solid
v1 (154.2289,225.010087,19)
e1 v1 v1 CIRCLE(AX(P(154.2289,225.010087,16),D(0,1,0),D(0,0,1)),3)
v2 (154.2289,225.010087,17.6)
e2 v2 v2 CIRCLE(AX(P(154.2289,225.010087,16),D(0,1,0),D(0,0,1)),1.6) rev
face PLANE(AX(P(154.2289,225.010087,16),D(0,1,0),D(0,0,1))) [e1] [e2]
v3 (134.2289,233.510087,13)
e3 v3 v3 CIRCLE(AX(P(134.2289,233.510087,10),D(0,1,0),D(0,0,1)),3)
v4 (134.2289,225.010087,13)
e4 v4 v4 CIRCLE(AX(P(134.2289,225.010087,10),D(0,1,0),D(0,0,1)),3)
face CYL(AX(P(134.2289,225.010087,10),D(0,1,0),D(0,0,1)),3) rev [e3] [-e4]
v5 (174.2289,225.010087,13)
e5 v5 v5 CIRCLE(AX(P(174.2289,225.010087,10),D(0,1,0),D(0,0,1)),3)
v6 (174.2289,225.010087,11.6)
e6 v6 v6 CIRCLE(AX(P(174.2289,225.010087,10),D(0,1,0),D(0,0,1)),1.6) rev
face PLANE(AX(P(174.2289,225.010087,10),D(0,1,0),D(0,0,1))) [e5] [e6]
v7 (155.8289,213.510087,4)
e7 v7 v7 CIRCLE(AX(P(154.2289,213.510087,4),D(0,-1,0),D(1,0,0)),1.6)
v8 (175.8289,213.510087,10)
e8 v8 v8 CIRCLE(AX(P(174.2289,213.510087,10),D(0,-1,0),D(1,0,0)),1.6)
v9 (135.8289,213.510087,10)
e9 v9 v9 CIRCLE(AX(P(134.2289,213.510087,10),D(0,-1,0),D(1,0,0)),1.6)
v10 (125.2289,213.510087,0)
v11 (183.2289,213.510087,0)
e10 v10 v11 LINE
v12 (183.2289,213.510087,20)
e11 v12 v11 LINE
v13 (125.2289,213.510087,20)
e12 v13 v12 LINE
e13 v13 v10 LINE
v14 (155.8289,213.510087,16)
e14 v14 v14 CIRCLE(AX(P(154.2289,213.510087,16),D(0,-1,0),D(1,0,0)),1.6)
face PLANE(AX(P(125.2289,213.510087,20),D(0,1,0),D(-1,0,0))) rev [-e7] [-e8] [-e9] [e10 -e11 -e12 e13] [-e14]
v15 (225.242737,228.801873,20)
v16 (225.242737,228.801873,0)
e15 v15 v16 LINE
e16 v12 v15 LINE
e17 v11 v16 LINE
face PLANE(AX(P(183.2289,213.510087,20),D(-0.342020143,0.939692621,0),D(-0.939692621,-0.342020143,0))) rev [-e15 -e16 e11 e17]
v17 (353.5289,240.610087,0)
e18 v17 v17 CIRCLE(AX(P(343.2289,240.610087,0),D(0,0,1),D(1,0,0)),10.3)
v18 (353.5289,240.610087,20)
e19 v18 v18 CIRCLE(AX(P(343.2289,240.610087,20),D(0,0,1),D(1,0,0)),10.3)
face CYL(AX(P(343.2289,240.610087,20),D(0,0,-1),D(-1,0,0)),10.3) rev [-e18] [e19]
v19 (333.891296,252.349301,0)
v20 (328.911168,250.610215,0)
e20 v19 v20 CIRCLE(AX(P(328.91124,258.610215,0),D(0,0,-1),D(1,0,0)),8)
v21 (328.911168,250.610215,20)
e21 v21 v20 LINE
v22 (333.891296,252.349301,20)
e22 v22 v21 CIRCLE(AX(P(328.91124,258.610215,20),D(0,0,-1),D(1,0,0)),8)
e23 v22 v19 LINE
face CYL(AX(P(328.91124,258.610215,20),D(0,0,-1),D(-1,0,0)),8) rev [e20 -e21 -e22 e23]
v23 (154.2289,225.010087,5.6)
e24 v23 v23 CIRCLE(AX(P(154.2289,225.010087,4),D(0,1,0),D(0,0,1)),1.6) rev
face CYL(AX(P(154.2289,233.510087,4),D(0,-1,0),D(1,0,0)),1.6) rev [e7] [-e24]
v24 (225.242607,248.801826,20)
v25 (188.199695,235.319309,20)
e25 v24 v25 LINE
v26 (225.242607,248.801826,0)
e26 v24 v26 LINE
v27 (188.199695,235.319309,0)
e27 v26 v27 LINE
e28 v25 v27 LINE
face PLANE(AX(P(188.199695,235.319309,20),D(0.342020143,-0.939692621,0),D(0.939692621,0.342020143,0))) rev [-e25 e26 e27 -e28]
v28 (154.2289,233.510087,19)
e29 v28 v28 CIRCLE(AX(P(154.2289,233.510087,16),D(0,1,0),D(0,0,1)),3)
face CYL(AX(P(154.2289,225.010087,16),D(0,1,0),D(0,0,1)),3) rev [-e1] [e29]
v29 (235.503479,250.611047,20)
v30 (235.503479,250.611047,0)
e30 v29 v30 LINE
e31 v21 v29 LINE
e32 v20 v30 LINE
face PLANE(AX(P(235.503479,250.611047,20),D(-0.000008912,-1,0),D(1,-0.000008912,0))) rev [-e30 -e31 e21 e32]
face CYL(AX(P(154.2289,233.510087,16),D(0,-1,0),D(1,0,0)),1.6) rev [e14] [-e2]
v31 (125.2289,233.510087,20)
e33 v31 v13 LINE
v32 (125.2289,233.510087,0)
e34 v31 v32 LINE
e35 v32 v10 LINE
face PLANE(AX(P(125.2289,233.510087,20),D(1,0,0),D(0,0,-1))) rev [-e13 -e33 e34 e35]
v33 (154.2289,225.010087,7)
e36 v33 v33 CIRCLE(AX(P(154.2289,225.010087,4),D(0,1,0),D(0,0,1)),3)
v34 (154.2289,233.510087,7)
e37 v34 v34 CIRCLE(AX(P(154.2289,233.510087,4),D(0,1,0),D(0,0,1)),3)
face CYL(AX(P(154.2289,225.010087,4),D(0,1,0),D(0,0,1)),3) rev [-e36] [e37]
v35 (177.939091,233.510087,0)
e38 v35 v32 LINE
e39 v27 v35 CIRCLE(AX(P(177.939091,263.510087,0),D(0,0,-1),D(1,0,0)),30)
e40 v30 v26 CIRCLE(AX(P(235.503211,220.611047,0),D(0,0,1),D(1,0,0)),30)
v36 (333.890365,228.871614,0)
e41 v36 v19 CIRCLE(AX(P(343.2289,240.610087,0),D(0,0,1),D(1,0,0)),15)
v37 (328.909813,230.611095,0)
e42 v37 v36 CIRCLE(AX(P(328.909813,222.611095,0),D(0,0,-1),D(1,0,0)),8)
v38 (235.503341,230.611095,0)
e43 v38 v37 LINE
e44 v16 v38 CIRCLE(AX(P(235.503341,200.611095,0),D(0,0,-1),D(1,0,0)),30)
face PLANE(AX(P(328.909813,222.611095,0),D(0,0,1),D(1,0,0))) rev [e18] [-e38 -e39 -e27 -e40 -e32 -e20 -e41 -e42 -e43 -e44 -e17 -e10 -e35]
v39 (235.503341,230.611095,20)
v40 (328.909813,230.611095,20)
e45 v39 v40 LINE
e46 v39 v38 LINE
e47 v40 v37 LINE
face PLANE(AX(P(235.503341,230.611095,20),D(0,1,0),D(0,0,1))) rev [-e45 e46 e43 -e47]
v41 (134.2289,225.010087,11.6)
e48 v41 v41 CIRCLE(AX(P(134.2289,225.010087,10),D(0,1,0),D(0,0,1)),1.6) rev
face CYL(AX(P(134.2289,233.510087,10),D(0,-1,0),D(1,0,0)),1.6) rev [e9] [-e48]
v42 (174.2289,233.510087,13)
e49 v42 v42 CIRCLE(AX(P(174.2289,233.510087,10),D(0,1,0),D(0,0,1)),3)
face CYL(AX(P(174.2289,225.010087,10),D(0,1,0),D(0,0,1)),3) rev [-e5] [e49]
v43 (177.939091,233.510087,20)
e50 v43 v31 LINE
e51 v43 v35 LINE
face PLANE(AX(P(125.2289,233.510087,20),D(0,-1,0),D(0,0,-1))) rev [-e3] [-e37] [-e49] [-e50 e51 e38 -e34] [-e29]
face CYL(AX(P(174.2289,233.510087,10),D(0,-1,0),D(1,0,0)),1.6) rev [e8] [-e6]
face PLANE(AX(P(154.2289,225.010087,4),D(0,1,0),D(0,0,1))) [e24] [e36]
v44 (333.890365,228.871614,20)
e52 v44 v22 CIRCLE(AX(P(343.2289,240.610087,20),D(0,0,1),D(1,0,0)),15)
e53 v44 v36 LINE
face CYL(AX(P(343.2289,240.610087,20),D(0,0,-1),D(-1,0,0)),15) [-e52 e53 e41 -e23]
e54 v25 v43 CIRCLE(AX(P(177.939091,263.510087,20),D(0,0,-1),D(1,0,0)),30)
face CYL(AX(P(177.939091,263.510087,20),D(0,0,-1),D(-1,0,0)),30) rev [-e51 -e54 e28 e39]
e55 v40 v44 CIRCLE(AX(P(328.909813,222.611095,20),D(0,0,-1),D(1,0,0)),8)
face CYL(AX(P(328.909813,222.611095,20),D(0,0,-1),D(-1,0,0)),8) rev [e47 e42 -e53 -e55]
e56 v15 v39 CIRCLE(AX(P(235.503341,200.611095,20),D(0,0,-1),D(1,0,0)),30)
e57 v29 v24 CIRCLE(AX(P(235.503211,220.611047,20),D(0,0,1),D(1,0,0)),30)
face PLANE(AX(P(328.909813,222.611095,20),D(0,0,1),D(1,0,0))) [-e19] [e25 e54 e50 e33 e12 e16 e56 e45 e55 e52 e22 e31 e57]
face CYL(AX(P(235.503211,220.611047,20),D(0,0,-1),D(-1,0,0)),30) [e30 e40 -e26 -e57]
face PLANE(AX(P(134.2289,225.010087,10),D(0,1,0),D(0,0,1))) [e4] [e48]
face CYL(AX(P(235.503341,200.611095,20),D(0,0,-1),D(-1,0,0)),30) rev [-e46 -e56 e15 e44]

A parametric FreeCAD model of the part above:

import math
import FreeCAD as App
import Part
import Sketcher
from FreeCAD import Vector
Q = App.Units.Quantity

doc = App.newDocument("Part")
body = doc.addObject("PartDesign::Body", "Body")

# Sketch on XY plane
sketch1 = doc.addObject("Sketcher::SketchObject", "Sketch")
body.addObject(sketch1)
sketch1.AttachmentSupport = (doc.XY_Plane, [""])
sketch1.MapMode = "FlatFace"
sketch1.addGeometry([
    Part.LineSegment(Vector(125.2289, 213.510087, 0), Vector(183.2289, 213.510087, 0)),  # 0
    Part.LineSegment(Vector(183.2289, 213.510087, 0), Vector(225.242737, 228.801873, 0)),  # 1
    Part.ArcOfCircle(Part.Circle(Vector(235.503341, 200.611095, 0), Vector(0, 0, 1), 30), math.radians(90), math.radians(110)),  # 2
    Part.LineSegment(Vector(235.503341, 230.611095, 0), Vector(328.909813, 230.611095, 0)),  # 3
    Part.ArcOfCircle(Part.Circle(Vector(328.909813, 222.611095, 0), Vector(0, 0, 1), 8), math.radians(51.496019), math.radians(90)),  # 4
    Part.ArcOfCircle(Part.Circle(Vector(343.2289, 240.610087, 0), Vector(0, 0, 1), 15), math.radians(-128.503981), math.radians(128.49944)),  # 5
    Part.ArcOfCircle(Part.Circle(Vector(328.91124, 258.610215, 0), Vector(0, 0, 1), 8), math.radians(-90.000511), math.radians(-51.50056)),  # 6
    Part.LineSegment(Vector(328.911168, 250.610215, 0), Vector(235.503479, 250.611047, 0)),  # 7
    Part.ArcOfCircle(Part.Circle(Vector(235.503211, 220.611048, 0), Vector(0, 0, 1), 30), math.radians(89.999489), math.radians(110)),  # 8
    Part.LineSegment(Vector(225.242607, 248.801826, 0), Vector(188.199695, 235.319309, 0)),  # 9
    Part.ArcOfCircle(Part.Circle(Vector(177.939091, 263.510087, 0), Vector(0, 0, 1), 30), math.radians(-90), math.radians(-70)),  # 10
    Part.LineSegment(Vector(177.939091, 233.510087, 0), Vector(125.2289, 233.510087, 0)),  # 11
    Part.LineSegment(Vector(125.2289, 233.510087, 0), Vector(125.2289, 213.510087, 0)),  # 12
    Part.Circle(Vector(343.2289, 240.610087, 0), Vector(0, 0, 1), 10.3),  # 13
], False)
sketch1.addConstraint([
    Sketcher.Constraint("Coincident", 0, 2, 1, 1),
    Sketcher.Constraint("Tangent", 1, 2, 2, 2),
    Sketcher.Constraint("Tangent", 2, 1, 3, 1),
    Sketcher.Constraint("Tangent", 3, 2, 4, 2),
    Sketcher.Constraint("Tangent", 4, 1, 5, 1),
    Sketcher.Constraint("Tangent", 5, 2, 6, 2),
    Sketcher.Constraint("Tangent", 6, 1, 7, 1),
    Sketcher.Constraint("Tangent", 7, 2, 8, 1),
    Sketcher.Constraint("Tangent", 8, 2, 9, 1),
    Sketcher.Constraint("Tangent", 9, 2, 10, 2),
    Sketcher.Constraint("Tangent", 10, 1, 11, 1),
    Sketcher.Constraint("Coincident", 11, 2, 12, 1),
    Sketcher.Constraint("Coincident", 12, 2, 0, 1),
    Sketcher.Constraint("Horizontal", 0),
    Sketcher.Constraint("Horizontal", 3),
    Sketcher.Constraint("Horizontal", 11),
    Sketcher.Constraint("Vertical", 12),
    Sketcher.Constraint("Coincident", 13, 3, 5, 3),
    Sketcher.Constraint("Equal", 4, 6),
    Sketcher.Constraint("Equal", 2, 8),
    Sketcher.Constraint("Equal", 8, 10),
    Sketcher.Constraint("Parallel", 1, 9),
    Sketcher.Constraint("Radius", 2, 30.0),
    Sketcher.Constraint("Radius", 4, 8.0),
    Sketcher.Constraint("Radius", 5, 15.0),
    Sketcher.Constraint("Diameter", 13, 20.6),
    Sketcher.Constraint("DistanceX", 0, 1, 0, 2, 58.0),
    Sketcher.Constraint("DistanceY", 12, 2, 12, 1, 20.0),
    Sketcher.Constraint("Angle", 1, Q("20 deg")),
    Sketcher.Constraint("DistanceY", 5, 3, 10, 3, 22.9),
    Sketcher.Constraint("DistanceX", 11, 2, 11, 1, 52.710191),
    Sketcher.Constraint("DistanceX", -1, 1, 5, 3, 343.2289),
    Sketcher.Constraint("DistanceX", -1, 1, 0, 2, 183.2289),
    Sketcher.Constraint("DistanceY", -1, 1, 5, 2, 252.349301),
    Sketcher.Constraint("DistanceX", 2, 3, 6, 3, 93.407899),
    Sketcher.Constraint("DistanceX", 8, 3, 4, 3, 93.406602),
    Sketcher.Constraint("DistanceY", 4, 1, 6, 3, 29.738601),
])
pad1 = doc.addObject("PartDesign::Pad", "Pad")
body.addObject(pad1)
pad1.Profile = sketch1
pad1.Length = 20

# Sketch on XZ plane
sketch2 = doc.addObject("Sketcher::SketchObject", "Sketch001")
body.addObject(sketch2)
sketch2.AttachmentSupport = (doc.XZ_Plane, [""])
sketch2.MapMode = "FlatFace"
sketch2.AttachmentOffset = App.Placement(Vector(0, 0, -213.510087), App.Rotation())
sketch2.addGeometry([
    Part.Circle(Vector(134.2289, 10, 0), Vector(0, 0, 1), 1.6),
    Part.Circle(Vector(174.2289, 10, 0), Vector(0, 0, 1), 1.6),
    Part.Circle(Vector(154.2289, 16, 0), Vector(0, 0, 1), 1.6),
    Part.Circle(Vector(154.2289, 4, 0), Vector(0, 0, 1), 1.6),
], False)
sketch2.addConstraint([
    Sketcher.Constraint("Equal", 0, 1),
    Sketcher.Constraint("Equal", 1, 2),
    Sketcher.Constraint("Equal", 2, 3),
    Sketcher.Constraint("Horizontal", 0, 3, 1, 3),
    Sketcher.Constraint("Vertical", 2, 3, 3, 3),
    Sketcher.Constraint("Diameter", 0, 3.2),
    Sketcher.Constraint("DistanceY", -1, 1, 0, 3, 10.0),
    Sketcher.Constraint("DistanceY", -1, 1, 2, 3, 16.0),
    Sketcher.Constraint("DistanceY", -1, 1, 3, 3, 4.0),
    Sketcher.Constraint("DistanceX", 0, 3, 1, 3, 40.0),
    Sketcher.Constraint("DistanceX", 0, 3, 2, 3, 20.0),
    Sketcher.Constraint("DistanceX", -1, 1, 0, 3, 134.2289),
])
pocket1 = doc.addObject("PartDesign::Pocket", "Pocket")
body.addObject(pocket1)
pocket1.Profile = sketch2
pocket1.Length = 20

# Sketch on XZ plane
sketch3 = doc.addObject("Sketcher::SketchObject", "Sketch002")
body.addObject(sketch3)
sketch3.AttachmentSupport = (doc.XZ_Plane, [""])
sketch3.MapMode = "FlatFace"
sketch3.AttachmentOffset = App.Placement(Vector(0, 0, -233.510087), App.Rotation())
sketch3.addGeometry([
    Part.Circle(Vector(134.2289, 10, 0), Vector(0, 0, 1), 3),
    Part.Circle(Vector(154.2289, 4, 0), Vector(0, 0, 1), 3),
    Part.Circle(Vector(154.2289, 16, 0), Vector(0, 0, 1), 3),
    Part.Circle(Vector(174.2289, 10, 0), Vector(0, 0, 1), 3),
], False)
sketch3.addConstraint([
    Sketcher.Constraint("Equal", 0, 1),
    Sketcher.Constraint("Equal", 1, 2),
    Sketcher.Constraint("Equal", 2, 3),
    Sketcher.Constraint("Horizontal", 0, 3, 3, 3),
    Sketcher.Constraint("Vertical", 1, 3, 2, 3),
    Sketcher.Constraint("Diameter", 0, 6.0),
    Sketcher.Constraint("DistanceY", -1, 1, 0, 3, 10.0),
    Sketcher.Constraint("DistanceY", -1, 1, 1, 3, 4.0),
    Sketcher.Constraint("DistanceY", -1, 1, 2, 3, 16.0),
    Sketcher.Constraint("DistanceX", 0, 3, 1, 3, 20.0),
    Sketcher.Constraint("DistanceX", 1, 3, 3, 3, 20.0),
    Sketcher.Constraint("DistanceX", -1, 1, 0, 3, 134.2289),
])
pocket2 = doc.addObject("PartDesign::Pocket", "Pocket001")
body.addObject(pocket2)
pocket2.Profile = sketch3
pocket2.Length = 8.5
pocket2.Reversed = True

doc.recompute()
